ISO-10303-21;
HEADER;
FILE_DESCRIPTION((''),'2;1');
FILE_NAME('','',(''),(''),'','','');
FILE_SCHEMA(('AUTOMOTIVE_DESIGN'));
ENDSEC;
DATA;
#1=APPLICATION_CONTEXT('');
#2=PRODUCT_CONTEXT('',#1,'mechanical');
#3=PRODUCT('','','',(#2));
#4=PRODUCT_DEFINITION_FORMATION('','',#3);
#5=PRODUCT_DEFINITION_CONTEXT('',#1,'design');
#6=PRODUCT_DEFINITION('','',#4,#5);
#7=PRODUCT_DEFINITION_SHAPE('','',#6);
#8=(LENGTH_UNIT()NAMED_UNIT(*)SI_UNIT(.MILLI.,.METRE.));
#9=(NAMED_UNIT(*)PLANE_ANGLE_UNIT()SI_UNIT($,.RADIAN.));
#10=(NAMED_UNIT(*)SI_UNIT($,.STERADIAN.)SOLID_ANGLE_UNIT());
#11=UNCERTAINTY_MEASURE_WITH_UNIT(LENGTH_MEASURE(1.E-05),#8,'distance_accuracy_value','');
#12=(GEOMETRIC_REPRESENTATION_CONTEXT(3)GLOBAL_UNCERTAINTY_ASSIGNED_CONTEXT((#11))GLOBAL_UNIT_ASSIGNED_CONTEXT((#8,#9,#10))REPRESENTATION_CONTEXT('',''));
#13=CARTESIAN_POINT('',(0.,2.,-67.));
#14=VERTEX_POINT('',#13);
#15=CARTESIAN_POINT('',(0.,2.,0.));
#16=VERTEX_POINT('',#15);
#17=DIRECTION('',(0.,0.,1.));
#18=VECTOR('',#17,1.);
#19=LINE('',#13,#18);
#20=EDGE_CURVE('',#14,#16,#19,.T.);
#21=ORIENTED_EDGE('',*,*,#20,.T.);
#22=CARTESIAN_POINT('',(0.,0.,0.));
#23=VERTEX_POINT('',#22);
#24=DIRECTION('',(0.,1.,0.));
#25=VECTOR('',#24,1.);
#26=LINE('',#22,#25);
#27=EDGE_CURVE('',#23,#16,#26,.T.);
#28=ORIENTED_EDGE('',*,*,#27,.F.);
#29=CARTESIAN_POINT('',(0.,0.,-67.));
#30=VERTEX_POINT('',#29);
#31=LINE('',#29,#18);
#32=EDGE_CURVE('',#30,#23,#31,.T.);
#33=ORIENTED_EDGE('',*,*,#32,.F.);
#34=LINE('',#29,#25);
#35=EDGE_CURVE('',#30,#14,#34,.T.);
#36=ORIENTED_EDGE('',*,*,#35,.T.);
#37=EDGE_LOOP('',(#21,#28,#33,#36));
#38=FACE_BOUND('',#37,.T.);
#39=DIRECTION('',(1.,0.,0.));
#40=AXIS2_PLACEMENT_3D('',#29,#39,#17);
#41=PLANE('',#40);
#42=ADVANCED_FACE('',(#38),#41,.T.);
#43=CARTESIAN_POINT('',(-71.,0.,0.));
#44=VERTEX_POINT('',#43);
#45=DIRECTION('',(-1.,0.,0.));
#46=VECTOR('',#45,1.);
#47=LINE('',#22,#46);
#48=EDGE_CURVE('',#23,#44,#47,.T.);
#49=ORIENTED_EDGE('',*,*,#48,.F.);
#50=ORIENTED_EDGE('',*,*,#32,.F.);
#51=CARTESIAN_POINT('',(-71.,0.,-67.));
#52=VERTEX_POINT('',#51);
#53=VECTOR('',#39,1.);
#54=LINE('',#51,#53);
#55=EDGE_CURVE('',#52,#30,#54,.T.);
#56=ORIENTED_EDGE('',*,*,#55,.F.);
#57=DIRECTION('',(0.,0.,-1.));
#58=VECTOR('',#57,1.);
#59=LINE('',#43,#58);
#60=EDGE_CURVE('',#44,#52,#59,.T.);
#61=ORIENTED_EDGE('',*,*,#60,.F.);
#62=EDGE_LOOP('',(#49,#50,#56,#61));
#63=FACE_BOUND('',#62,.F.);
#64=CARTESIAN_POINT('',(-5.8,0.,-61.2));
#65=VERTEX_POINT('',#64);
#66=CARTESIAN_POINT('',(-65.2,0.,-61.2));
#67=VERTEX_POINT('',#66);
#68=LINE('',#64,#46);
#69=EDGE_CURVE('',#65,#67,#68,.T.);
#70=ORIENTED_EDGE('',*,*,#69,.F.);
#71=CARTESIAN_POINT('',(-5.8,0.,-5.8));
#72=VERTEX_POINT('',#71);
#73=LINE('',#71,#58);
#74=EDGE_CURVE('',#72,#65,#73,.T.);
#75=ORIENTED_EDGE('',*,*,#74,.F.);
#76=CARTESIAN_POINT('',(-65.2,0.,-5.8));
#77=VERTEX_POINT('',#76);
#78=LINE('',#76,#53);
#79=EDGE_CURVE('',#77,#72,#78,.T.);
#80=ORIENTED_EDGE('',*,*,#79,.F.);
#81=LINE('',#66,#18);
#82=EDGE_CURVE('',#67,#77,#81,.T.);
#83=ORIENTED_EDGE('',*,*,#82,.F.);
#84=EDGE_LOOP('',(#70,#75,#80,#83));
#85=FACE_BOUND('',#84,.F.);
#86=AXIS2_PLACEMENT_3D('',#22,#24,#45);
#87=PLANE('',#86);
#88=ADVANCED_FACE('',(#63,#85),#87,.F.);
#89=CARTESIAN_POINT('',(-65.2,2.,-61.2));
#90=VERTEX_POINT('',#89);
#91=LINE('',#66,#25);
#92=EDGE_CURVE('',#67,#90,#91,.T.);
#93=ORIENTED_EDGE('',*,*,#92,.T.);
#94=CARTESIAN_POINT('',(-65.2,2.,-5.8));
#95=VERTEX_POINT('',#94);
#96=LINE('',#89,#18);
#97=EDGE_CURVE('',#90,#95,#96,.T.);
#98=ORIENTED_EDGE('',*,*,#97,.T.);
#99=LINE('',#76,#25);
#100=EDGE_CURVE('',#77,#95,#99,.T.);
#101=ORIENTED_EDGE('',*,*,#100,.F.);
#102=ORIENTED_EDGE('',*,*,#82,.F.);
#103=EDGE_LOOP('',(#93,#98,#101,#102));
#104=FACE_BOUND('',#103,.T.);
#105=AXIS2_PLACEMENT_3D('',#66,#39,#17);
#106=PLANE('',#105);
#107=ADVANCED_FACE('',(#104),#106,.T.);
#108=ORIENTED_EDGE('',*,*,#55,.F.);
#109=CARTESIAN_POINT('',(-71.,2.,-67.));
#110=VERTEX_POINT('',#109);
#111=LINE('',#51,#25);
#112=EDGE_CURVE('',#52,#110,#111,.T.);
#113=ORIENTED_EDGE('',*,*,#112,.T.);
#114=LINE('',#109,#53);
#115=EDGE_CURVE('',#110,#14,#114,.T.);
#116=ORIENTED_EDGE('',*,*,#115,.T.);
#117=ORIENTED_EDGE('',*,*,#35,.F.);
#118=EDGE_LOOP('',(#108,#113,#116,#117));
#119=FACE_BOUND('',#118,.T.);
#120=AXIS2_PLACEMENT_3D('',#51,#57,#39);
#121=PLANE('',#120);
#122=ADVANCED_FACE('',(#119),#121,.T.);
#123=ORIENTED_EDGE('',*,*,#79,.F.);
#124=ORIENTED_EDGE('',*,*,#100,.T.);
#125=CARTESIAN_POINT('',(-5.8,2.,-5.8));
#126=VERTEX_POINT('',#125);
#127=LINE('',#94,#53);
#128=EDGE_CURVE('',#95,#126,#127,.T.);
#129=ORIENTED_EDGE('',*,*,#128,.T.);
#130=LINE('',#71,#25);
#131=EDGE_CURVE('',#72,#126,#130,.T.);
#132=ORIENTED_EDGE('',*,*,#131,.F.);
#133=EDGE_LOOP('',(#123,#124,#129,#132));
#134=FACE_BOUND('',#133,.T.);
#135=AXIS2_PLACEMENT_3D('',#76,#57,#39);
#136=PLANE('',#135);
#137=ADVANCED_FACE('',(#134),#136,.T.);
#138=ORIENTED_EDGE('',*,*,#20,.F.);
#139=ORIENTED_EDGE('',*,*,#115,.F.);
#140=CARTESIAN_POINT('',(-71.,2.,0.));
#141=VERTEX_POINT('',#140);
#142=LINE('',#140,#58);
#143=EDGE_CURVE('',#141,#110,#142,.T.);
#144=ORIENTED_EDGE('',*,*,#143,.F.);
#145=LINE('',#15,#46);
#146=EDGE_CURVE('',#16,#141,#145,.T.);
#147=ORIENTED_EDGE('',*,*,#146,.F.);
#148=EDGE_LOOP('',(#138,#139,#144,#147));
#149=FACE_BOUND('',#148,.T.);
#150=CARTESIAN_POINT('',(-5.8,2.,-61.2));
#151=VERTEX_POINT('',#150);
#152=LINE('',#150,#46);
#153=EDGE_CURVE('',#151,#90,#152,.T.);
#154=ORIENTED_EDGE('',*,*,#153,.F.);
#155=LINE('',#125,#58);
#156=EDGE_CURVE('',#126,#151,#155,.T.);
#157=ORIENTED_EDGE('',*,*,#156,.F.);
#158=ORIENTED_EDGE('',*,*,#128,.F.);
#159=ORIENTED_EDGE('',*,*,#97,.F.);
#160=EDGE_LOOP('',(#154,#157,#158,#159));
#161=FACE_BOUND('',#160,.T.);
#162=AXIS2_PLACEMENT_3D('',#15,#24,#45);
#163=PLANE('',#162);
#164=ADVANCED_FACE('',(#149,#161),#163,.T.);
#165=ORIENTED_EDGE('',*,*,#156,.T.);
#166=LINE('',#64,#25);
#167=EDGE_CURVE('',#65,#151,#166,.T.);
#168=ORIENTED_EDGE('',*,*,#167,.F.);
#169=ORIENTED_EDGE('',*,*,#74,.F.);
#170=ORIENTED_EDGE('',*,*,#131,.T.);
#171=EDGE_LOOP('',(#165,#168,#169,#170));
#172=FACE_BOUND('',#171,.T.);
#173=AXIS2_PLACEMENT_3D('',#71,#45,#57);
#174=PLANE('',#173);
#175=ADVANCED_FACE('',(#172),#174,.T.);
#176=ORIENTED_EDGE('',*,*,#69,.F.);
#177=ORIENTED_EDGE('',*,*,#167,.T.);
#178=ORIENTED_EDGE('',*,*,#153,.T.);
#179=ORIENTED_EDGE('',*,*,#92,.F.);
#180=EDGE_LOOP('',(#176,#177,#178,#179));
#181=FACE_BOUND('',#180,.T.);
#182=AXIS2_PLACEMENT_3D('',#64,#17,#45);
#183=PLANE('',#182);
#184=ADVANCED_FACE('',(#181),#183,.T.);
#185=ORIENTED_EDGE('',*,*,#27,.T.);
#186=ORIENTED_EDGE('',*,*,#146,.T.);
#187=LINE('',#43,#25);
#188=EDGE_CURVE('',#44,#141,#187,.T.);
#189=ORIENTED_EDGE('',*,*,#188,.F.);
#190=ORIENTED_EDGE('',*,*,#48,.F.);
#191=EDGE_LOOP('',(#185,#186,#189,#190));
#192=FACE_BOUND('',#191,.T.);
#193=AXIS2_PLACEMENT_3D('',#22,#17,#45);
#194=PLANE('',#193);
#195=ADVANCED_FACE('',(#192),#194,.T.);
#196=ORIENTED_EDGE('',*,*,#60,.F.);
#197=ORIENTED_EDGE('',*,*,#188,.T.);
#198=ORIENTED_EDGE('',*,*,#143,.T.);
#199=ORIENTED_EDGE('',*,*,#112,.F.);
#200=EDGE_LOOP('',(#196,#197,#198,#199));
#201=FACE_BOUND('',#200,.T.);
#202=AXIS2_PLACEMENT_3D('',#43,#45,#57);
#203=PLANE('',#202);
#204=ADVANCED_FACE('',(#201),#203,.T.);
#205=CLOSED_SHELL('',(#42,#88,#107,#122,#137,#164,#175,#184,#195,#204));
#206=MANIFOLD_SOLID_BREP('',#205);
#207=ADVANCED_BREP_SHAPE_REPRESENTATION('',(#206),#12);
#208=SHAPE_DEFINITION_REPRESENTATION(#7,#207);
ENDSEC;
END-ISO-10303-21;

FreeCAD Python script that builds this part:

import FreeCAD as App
import Part
import Sketcher

V = App.Vector
Q = App.Units.Quantity


def add_polygon(sketch, points):
    """Adds a closed chain of lines whose ends are joined by coincident constraints."""
    first, n = sketch.GeometryCount, len(points)
    for a, b in zip(points, points[1:] + points[:1]):
        sketch.addGeometry(Part.LineSegment(App.Vector(*a, 0), App.Vector(*b, 0)), False)
    for i in range(n):
        sketch.addConstraint(Sketcher.Constraint("Coincident", first + i, 2, first + (i + 1) % n, 1))

doc = App.newDocument("Part")
body = doc.addObject("PartDesign::Body", "Body")

# Sketch on XZ plane
sketch1 = body.newObject("Sketcher::SketchObject", "Sketch")
sketch1.AttachmentSupport = (doc.getObject("XZ_Plane"), [""])
sketch1.MapMode = "FlatFace"
add_polygon(sketch1, [(-71, 0), (0, 0), (0, -67), (-71, -67)])  # lines 0-3
add_polygon(sketch1, [(-65, -6), (-65, -61), (-6, -61), (-6, -6)])  # lines 4-7
sketch1.addConstraint([
    Sketcher.Constraint("Horizontal", 0),
    Sketcher.Constraint("Vertical", 1),
    Sketcher.Constraint("Horizontal", 2),
    Sketcher.Constraint("Vertical", 3),
    Sketcher.Constraint("Vertical", 4),
    Sketcher.Constraint("Horizontal", 5),
    Sketcher.Constraint("Vertical", 6),
    Sketcher.Constraint("Horizontal", 7),
    Sketcher.Constraint("Coincident", 0, 2, -1, 1),
    Sketcher.Constraint("DistanceX", 0, 1, 0, 2, Q("71 mm")),
    Sketcher.Constraint("DistanceY", 1, 2, 1, 1, Q("67 mm")),
    Sketcher.Constraint("DistanceX", 5, 2, -1, 1, Q("5.8 mm")),
    Sketcher.Constraint("DistanceY", 6, 2, -1, 1, Q("5.8 mm")),
    Sketcher.Constraint("DistanceX", 2, 2, 4, 2, Q("5.8 mm")),
    Sketcher.Constraint("DistanceY", 2, 2, 4, 2, Q("5.8 mm")),
])
pad1 = body.newObject("PartDesign::Pad", "Pad")
pad1.Profile = sketch1
pad1.Length = 2
pad1.Reversed = True

doc.recompute()
